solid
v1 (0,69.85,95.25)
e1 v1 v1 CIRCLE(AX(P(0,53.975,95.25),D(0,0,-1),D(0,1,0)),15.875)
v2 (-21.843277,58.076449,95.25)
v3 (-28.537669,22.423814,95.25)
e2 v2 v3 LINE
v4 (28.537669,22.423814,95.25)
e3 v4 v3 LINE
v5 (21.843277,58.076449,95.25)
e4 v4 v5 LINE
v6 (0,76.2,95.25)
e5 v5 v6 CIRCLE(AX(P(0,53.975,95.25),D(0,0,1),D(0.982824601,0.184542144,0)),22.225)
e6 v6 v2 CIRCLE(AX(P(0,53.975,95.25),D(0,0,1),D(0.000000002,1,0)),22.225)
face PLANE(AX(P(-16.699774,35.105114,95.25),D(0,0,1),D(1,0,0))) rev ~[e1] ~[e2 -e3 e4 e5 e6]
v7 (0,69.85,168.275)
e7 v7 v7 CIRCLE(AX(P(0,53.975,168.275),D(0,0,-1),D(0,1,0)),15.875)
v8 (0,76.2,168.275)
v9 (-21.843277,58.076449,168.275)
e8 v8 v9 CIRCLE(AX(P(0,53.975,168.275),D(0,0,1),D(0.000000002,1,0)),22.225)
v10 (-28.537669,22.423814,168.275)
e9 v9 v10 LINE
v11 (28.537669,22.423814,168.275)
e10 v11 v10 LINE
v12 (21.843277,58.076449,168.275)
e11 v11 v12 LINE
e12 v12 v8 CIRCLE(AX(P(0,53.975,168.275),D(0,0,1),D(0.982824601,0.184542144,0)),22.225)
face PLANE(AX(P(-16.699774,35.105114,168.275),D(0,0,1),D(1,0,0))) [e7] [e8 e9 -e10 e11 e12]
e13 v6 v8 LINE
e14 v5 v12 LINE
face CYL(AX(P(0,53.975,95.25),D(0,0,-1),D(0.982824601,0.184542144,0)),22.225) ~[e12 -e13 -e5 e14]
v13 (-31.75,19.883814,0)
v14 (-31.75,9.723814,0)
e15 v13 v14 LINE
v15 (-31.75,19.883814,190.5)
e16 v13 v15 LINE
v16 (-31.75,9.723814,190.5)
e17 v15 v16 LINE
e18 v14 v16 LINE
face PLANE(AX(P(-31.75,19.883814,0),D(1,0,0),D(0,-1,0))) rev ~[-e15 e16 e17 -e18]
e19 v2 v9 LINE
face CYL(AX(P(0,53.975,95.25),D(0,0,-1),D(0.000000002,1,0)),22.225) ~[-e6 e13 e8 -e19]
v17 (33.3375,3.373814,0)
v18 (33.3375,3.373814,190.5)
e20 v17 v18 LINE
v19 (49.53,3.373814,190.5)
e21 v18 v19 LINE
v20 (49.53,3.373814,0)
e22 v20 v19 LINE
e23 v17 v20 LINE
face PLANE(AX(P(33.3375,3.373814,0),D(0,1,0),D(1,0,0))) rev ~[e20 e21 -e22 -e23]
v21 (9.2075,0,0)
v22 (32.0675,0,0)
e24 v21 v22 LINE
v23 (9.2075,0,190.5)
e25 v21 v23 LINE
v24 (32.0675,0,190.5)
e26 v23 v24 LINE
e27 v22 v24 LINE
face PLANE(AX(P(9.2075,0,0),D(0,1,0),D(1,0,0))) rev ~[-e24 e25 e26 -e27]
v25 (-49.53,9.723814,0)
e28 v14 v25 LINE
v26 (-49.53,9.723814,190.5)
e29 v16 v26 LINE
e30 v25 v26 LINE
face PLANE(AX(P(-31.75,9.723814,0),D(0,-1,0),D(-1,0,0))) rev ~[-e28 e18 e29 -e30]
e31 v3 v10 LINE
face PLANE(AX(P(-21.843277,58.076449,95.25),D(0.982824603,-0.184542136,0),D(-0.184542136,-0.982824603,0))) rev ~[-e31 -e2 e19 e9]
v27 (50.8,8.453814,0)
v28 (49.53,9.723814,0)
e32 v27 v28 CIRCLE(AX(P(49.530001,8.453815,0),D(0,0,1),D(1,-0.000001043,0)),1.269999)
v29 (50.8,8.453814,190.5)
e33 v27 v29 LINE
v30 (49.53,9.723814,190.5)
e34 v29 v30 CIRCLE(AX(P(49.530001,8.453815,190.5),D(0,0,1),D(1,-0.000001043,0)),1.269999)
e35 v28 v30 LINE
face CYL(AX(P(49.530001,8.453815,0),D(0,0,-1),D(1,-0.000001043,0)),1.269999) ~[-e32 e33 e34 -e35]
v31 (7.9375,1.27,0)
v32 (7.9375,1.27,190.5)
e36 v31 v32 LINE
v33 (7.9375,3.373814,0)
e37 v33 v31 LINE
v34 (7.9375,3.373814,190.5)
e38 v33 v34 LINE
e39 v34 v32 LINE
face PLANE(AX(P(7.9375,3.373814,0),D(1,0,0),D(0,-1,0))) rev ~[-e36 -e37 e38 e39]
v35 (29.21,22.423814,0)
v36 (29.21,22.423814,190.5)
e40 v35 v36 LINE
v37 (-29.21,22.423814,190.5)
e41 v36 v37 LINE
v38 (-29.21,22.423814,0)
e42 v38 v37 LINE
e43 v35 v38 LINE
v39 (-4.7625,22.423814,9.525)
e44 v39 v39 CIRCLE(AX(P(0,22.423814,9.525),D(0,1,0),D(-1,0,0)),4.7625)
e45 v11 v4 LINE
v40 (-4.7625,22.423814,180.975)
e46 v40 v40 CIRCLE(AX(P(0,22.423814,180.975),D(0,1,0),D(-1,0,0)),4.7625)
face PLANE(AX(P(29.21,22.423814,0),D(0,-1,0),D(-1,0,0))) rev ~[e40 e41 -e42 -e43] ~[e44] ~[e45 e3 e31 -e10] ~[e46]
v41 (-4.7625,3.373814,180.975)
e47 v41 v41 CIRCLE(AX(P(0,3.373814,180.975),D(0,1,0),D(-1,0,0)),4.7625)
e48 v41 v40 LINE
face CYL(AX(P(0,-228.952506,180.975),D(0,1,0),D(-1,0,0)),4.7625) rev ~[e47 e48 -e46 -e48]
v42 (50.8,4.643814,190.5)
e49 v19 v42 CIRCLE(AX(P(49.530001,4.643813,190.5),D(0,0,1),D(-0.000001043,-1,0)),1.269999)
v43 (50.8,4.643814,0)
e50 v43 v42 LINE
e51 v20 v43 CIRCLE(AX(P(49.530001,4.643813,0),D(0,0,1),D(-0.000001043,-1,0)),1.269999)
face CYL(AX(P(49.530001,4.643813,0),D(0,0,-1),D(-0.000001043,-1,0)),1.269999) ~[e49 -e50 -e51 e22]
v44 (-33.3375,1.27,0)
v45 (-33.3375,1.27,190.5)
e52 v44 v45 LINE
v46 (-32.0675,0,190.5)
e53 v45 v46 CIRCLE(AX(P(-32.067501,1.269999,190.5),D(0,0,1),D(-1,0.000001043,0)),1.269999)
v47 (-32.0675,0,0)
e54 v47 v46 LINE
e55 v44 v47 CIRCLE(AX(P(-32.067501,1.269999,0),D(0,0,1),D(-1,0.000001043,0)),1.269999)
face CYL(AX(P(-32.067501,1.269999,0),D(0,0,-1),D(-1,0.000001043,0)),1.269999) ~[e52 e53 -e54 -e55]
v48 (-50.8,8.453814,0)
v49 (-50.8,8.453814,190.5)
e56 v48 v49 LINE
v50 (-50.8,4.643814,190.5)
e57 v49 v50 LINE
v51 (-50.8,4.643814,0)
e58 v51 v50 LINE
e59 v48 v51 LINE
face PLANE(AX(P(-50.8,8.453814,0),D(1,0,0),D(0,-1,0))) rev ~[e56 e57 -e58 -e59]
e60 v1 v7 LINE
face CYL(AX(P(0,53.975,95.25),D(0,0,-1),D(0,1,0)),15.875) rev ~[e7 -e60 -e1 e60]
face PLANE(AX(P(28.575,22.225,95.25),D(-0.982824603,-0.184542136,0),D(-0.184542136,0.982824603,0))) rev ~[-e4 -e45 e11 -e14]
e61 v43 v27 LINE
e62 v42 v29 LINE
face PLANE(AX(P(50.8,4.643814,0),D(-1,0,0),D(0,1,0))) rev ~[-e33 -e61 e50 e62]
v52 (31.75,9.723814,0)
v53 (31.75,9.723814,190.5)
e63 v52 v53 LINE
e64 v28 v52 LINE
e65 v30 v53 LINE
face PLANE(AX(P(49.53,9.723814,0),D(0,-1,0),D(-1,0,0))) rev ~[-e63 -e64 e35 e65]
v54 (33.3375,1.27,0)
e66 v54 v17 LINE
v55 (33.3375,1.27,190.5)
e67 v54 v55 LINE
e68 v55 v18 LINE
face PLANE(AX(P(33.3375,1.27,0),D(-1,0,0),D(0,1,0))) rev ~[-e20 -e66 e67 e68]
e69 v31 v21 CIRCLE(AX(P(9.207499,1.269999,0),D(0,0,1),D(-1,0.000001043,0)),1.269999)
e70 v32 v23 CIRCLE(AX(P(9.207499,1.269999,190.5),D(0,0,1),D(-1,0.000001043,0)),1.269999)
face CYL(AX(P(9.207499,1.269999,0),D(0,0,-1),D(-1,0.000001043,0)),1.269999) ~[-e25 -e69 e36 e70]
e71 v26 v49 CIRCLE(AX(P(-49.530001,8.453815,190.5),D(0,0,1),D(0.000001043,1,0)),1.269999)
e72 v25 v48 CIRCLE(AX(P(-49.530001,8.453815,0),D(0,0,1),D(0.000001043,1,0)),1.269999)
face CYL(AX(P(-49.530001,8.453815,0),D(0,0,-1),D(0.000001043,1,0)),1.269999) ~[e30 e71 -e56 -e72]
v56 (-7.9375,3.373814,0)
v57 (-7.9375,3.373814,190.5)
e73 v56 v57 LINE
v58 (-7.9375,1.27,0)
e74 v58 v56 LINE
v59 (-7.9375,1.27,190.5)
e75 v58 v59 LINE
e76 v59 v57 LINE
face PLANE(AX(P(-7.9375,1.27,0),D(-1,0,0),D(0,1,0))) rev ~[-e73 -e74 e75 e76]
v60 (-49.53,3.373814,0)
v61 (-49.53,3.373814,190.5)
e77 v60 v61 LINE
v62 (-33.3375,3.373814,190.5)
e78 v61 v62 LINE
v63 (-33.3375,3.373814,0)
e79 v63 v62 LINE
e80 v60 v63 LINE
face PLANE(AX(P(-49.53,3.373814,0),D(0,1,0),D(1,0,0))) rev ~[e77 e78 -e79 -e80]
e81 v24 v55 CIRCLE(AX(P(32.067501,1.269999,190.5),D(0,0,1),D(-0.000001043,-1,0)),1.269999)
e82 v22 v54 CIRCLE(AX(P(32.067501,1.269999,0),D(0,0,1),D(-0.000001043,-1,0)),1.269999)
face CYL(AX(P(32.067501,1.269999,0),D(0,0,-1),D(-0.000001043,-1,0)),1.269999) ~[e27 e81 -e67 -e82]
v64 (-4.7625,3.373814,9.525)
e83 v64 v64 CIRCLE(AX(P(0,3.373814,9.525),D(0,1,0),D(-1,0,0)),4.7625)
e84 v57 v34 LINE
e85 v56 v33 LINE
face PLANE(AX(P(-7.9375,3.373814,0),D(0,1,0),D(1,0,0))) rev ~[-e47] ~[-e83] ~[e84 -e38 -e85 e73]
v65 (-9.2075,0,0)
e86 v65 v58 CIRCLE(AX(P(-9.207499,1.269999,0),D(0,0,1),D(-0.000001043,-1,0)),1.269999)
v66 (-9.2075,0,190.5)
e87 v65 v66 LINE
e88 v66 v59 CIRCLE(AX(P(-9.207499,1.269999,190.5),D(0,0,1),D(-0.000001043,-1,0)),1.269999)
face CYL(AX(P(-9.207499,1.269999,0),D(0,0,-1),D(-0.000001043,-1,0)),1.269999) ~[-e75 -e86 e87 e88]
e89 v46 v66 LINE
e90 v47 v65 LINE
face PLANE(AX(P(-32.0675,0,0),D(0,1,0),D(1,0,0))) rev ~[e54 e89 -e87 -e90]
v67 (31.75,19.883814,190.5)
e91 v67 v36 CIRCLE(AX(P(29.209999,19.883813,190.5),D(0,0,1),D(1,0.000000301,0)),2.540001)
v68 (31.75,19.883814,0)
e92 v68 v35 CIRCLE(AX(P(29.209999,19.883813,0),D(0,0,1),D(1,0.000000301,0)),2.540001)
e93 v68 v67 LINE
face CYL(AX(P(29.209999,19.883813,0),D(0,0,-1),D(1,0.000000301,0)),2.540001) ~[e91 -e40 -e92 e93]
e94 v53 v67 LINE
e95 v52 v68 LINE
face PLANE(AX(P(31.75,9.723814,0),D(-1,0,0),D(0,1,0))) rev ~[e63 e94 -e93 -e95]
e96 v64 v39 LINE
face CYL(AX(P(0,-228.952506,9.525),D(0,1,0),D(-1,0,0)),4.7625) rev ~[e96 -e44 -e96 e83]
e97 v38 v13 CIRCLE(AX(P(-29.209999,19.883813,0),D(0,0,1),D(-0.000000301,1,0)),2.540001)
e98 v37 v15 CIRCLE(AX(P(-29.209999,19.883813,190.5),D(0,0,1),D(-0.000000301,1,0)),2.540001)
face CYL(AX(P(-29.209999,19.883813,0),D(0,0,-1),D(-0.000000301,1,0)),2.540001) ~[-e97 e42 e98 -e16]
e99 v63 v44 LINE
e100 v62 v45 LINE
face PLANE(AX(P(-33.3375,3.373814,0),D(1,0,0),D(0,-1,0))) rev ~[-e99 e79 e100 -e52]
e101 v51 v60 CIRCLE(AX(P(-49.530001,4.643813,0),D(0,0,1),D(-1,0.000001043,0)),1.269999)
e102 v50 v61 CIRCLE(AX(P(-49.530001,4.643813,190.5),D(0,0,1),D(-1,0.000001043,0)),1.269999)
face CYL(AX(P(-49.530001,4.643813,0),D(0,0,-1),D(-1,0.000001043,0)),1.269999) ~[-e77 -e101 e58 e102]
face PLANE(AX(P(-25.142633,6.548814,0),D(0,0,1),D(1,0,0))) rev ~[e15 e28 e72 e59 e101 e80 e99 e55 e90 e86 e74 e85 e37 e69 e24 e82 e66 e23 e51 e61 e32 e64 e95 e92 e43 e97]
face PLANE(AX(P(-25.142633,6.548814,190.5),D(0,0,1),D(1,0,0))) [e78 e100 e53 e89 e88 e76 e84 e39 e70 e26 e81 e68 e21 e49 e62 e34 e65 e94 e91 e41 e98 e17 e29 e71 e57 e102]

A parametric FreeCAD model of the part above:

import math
import FreeCAD as App
import Part
import Sketcher

V = App.Vector
Q = App.Units.Quantity

doc = App.newDocument("Part")
params = doc.addObject("Spreadsheet::Sheet", "Params")
for row, (alias, value) in enumerate([
    ("sketch1_radius", "0.1 in"),
    ("sketch1_radius2", "0.0499999 in"),
    ("sketch1_width", "0.9 in"),
    ("sketch1_width2", "0.7 in"),
    ("sketch1_width3", "2.3 in"),
    ("pad1_length", "7.5 in"),
    ("sketch2_diameter", "1.25 in"),
    ("sketch2_radius", "0.875 in"),
    ("sketch2_width", "2.25 in"),
    ("pad2_length", "2.875 in"),
    ("sketch3_diameter", "0.375 in"),
    ("hole_diameter", "0.375 in"),
    ("sketch4_diameter", "0.375 in"),
    ("hole2_diameter", "0.375 in"),
], start=1):
    params.set(f"A{row}", alias)
    params.set(f"B{row}", "=" + value)
    params.setAlias(f"B{row}", alias)

body = doc.addObject("PartDesign::Body", "Body")

sketch1 = body.newObject("Sketcher::SketchObject", "Sketch")
sketch1.AttachmentSupport = (doc.getObject("XY_Plane"), [""])
sketch1.MapMode = "FlatFace"
sketch1.addGeometry(Part.ArcOfCircle(Part.Circle(V(-49.5, 8.5, 0), V(0, 0, 1), 1.3), math.radians(90), math.radians(180)), False)
sketch1.addGeometry(Part.LineSegment(V(-50.8, 8.5, 0), V(-50.8, 4.6, 0)), False)
sketch1.addGeometry(Part.ArcOfCircle(Part.Circle(V(-49.5, 4.6, 0), V(0, 0, 1), 1.3), math.radians(180), math.radians(270)), False)
sketch1.addGeometry(Part.LineSegment(V(-49.5, 3.4, 0), V(-33.3, 3.4, 0)), False)
sketch1.addGeometry(Part.LineSegment(V(-33.3, 3.4, 0), V(-33.3, 1.3, 0)), False)
sketch1.addGeometry(Part.ArcOfCircle(Part.Circle(V(-32.1, 1.3, 0), V(0, 0, 1), 1.3), math.radians(180), math.radians(270)), False)
sketch1.addGeometry(Part.LineSegment(V(-32.1, 0, 0), V(-9.2, 0, 0)), False)
sketch1.addGeometry(Part.ArcOfCircle(Part.Circle(V(-9.2, 1.3, 0), V(0, 0, 1), 1.3), math.radians(-90), math.radians(0)), False)
sketch1.addGeometry(Part.LineSegment(V(-7.9, 1.3, 0), V(-7.9, 3.4, 0)), False)
sketch1.addGeometry(Part.LineSegment(V(-7.9, 3.4, 0), V(7.9, 3.4, 0)), False)
sketch1.addGeometry(Part.LineSegment(V(7.9, 3.4, 0), V(7.9, 1.3, 0)), False)
sketch1.addGeometry(Part.ArcOfCircle(Part.Circle(V(9.2, 1.3, 0), V(0, 0, 1), 1.3), math.radians(180), math.radians(270)), False)
sketch1.addGeometry(Part.LineSegment(V(9.2, 0, 0), V(32.1, 0, 0)), False)
sketch1.addGeometry(Part.ArcOfCircle(Part.Circle(V(32.1, 1.3, 0), V(0, 0, 1), 1.3), math.radians(-90), math.radians(0)), False)
sketch1.addGeometry(Part.LineSegment(V(33.3, 1.3, 0), V(33.3, 3.4, 0)), False)
sketch1.addGeometry(Part.LineSegment(V(33.3, 3.4, 0), V(49.5, 3.4, 0)), False)
sketch1.addGeometry(Part.ArcOfCircle(Part.Circle(V(49.5, 4.6, 0), V(0, 0, 1), 1.3), math.radians(-90), math.radians(0)), False)
sketch1.addGeometry(Part.LineSegment(V(50.8, 4.6, 0), V(50.8, 8.5, 0)), False)
sketch1.addGeometry(Part.ArcOfCircle(Part.Circle(V(49.5, 8.5, 0), V(0, 0, 1), 1.3), math.radians(0), math.radians(90)), False)
sketch1.addGeometry(Part.LineSegment(V(49.5, 9.7, 0), V(31.8, 9.7, 0)), False)
sketch1.addGeometry(Part.LineSegment(V(31.8, 9.7, 0), V(31.8, 19.9, 0)), False)
sketch1.addGeometry(Part.ArcOfCircle(Part.Circle(V(29.2, 19.9, 0), V(0, 0, 1), 2.5), math.radians(0), math.radians(90)), False)
sketch1.addGeometry(Part.LineSegment(V(29.2, 22.4, 0), V(-29.2, 22.4, 0)), False)
sketch1.addGeometry(Part.ArcOfCircle(Part.Circle(V(-29.2, 19.9, 0), V(0, 0, 1), 2.5), math.radians(90), math.radians(180)), False)
sketch1.addGeometry(Part.LineSegment(V(-31.8, 19.9, 0), V(-31.8, 9.7, 0)), False)
sketch1.addGeometry(Part.LineSegment(V(-31.8, 9.7, 0), V(-49.5, 9.7, 0)), False)
sketch1.addConstraint(Sketcher.Constraint("Tangent", 0, 2, 1, 1))
sketch1.addConstraint(Sketcher.Constraint("Tangent", 1, 2, 2, 1))
sketch1.addConstraint(Sketcher.Constraint("Tangent", 2, 2, 3, 1))
sketch1.addConstraint(Sketcher.Constraint("Coincident", 3, 2, 4, 1))
sketch1.addConstraint(Sketcher.Constraint("Tangent", 4, 2, 5, 1))
sketch1.addConstraint(Sketcher.Constraint("Tangent", 5, 2, 6, 1))
sketch1.addConstraint(Sketcher.Constraint("Tangent", 6, 2, 7, 1))
sketch1.addConstraint(Sketcher.Constraint("Tangent", 7, 2, 8, 1))
sketch1.addConstraint(Sketcher.Constraint("Coincident", 8, 2, 9, 1))
sketch1.addConstraint(Sketcher.Constraint("Coincident", 9, 2, 10, 1))
sketch1.addConstraint(Sketcher.Constraint("Tangent", 10, 2, 11, 1))
sketch1.addConstraint(Sketcher.Constraint("Tangent", 11, 2, 12, 1))
sketch1.addConstraint(Sketcher.Constraint("Tangent", 12, 2, 13, 1))
sketch1.addConstraint(Sketcher.Constraint("Tangent", 13, 2, 14, 1))
sketch1.addConstraint(Sketcher.Constraint("Coincident", 14, 2, 15, 1))
sketch1.addConstraint(Sketcher.Constraint("Tangent", 15, 2, 16, 1))
sketch1.addConstraint(Sketcher.Constraint("Tangent", 16, 2, 17, 1))
sketch1.addConstraint(Sketcher.Constraint("Tangent", 17, 2, 18, 1))
sketch1.addConstraint(Sketcher.Constraint("Tangent", 18, 2, 19, 1))
sketch1.addConstraint(Sketcher.Constraint("Coincident", 19, 2, 20, 1))
sketch1.addConstraint(Sketcher.Constraint("Tangent", 20, 2, 21, 1))
sketch1.addConstraint(Sketcher.Constraint("Tangent", 21, 2, 22, 1))
sketch1.addConstraint(Sketcher.Constraint("Tangent", 22, 2, 23, 1))
sketch1.addConstraint(Sketcher.Constraint("Tangent", 23, 2, 24, 1))
sketch1.addConstraint(Sketcher.Constraint("Coincident", 24, 2, 25, 1))
sketch1.addConstraint(Sketcher.Constraint("Tangent", 25, 2, 0, 1))
sketch1.addConstraint(Sketcher.Constraint("Vertical", 1))
sketch1.addConstraint(Sketcher.Constraint("Horizontal", 3))
sketch1.addConstraint(Sketcher.Constraint("Vertical", 4))
sketch1.addConstraint(Sketcher.Constraint("Horizontal", 6))
sketch1.addConstraint(Sketcher.Constraint("Vertical", 8))
sketch1.addConstraint(Sketcher.Constraint("Horizontal", 9))
sketch1.addConstraint(Sketcher.Constraint("Vertical", 10))
sketch1.addConstraint(Sketcher.Constraint("Horizontal", 12))
sketch1.addConstraint(Sketcher.Constraint("Vertical", 14))
sketch1.addConstraint(Sketcher.Constraint("Horizontal", 15))
sketch1.addConstraint(Sketcher.Constraint("Vertical", 17))
sketch1.addConstraint(Sketcher.Constraint("Horizontal", 19))
sketch1.addConstraint(Sketcher.Constraint("Vertical", 20))
sketch1.addConstraint(Sketcher.Constraint("Horizontal", 22))
sketch1.addConstraint(Sketcher.Constraint("Vertical", 24))
sketch1.addConstraint(Sketcher.Constraint("Horizontal", 25))
sketch1.addConstraint(Sketcher.Constraint("Equal", 0, 2))
sketch1.addConstraint(Sketcher.Constraint("Equal", 2, 5))
sketch1.addConstraint(Sketcher.Constraint("Equal", 5, 7))
sketch1.addConstraint(Sketcher.Constraint("Equal", 7, 11))
sketch1.addConstraint(Sketcher.Constraint("Equal", 11, 13))
sketch1.addConstraint(Sketcher.Constraint("Equal", 13, 16))
sketch1.addConstraint(Sketcher.Constraint("Equal", 16, 18))
sketch1.addConstraint(Sketcher.Constraint("Equal", 21, 23))
sketch1.addConstraint(Sketcher.Constraint("Symmetric", 6, 2, 11, 2, -1, 1))
sketch1.addConstraint(Sketcher.Constraint("Symmetric", 5, 3, 13, 3, -2))
sketch1.addConstraint(Sketcher.Constraint("Symmetric", 2, 3, 16, 3, -2))
sketch1.addConstraint(Sketcher.Constraint("Symmetric", 19, 2, 24, 2, -2))
sketch1.addConstraint(Sketcher.Constraint("Horizontal", 3, 2, 8, 2))
sketch1.addConstraint(Sketcher.Constraint("Radius", 21, Q("0.1 in")))
sketch1.addConstraint(Sketcher.Constraint("Radius", 0, Q("0.0499999 in")))
sketch1.addConstraint(Sketcher.Constraint("DistanceX", 6, 1, 6, 2, Q("0.9 in")))
sketch1.addConstraint(Sketcher.Constraint("DistanceX", 19, 2, 19, 1, Q("0.7 in")))
sketch1.addConstraint(Sketcher.Constraint("DistanceX", 22, 2, 22, 1, Q("2.3 in")))
sketch1.addConstraint(Sketcher.Constraint("DistanceY", 20, 1, 20, 2, Q("0.4 in")))
sketch1.addConstraint(Sketcher.Constraint("DistanceY", 1, 2, 1, 1, Q("0.15 in")))
sketch1.addConstraint(Sketcher.Constraint("DistanceX", 9, 1, 9, 2, Q("0.625 in")))
sketch1.addConstraint(Sketcher.Constraint("DistanceY", 4, 2, 4, 1, Q("2.103814 mm")))
sketch1.setExpression("Constraints[55]", "Params.sketch1_radius")
sketch1.setExpression("Constraints[56]", "Params.sketch1_radius2")
sketch1.setExpression("Constraints[57]", "Params.sketch1_width")
sketch1.setExpression("Constraints[58]", "Params.sketch1_width2")
sketch1.setExpression("Constraints[59]", "Params.sketch1_width3")
pad1 = body.newObject("PartDesign::Pad", "Pad")
pad1.Profile = sketch1
pad1.setExpression("Length", "Params.pad1_length")

sketch2 = body.newObject("Sketcher::SketchObject", "Sketch001")
sketch2.AttachmentSupport = (doc.getObject("XY_Plane"), [""])
sketch2.MapMode = "FlatFace"
sketch2.AttachmentOffset = App.Placement(V(0, 0, 3.75 * 25.4), App.Rotation())
sketch2.addGeometry(Part.LineSegment(V(-22, 58, 0), V(-29, 22, 0)), False)
sketch2.addGeometry(Part.LineSegment(V(-29, 22, 0), V(29, 22, 0)), False)
sketch2.addGeometry(Part.LineSegment(V(29, 22, 0), V(22, 58, 0)), False)
sketch2.addGeometry(Part.ArcOfCircle(Part.Circle(V(0, 54, 0), V(0, 0, 1), 22), math.radians(11), math.radians(90)), False)
sketch2.addGeometry(Part.ArcOfCircle(Part.Circle(V(0, 54, 0), V(0, 0, 1), 22), math.radians(90), math.radians(169)), False)
sketch2.addGeometry(Part.Circle(V(0, 54, 0), V(0, 0, 1), 16), False)
sketch2.addConstraint(Sketcher.Constraint("Coincident", 0, 2, 1, 1))
sketch2.addConstraint(Sketcher.Constraint("Coincident", 1, 2, 2, 1))
sketch2.addConstraint(Sketcher.Constraint("Tangent", 2, 2, 3, 1))
sketch2.addConstraint(Sketcher.Constraint("Tangent", 3, 2, 4, 1))
sketch2.addConstraint(Sketcher.Constraint("Tangent", 4, 2, 0, 1))
sketch2.addConstraint(Sketcher.Constraint("Horizontal", 1))
sketch2.addConstraint(Sketcher.Constraint("Coincident", 5, 3, 3, 3))
sketch2.addConstraint(Sketcher.Constraint("Equal", 3, 4))
sketch2.addConstraint(Sketcher.Constraint("Symmetric", 2, 2, 4, 2, -2))
sketch2.addConstraint(Sketcher.Constraint("PointOnObject", 3, 2, -2))
sketch2.addConstraint(Sketcher.Constraint("Diameter", 5, Q("1.25 in")))
sketch2.addConstraint(Sketcher.Constraint("DistanceY", -1, 1, 3, 2, Q("3 in")))
sketch2.addConstraint(Sketcher.Constraint("Radius", 3, Q("0.875 in")))
sketch2.addConstraint(Sketcher.Constraint("DistanceX", 1, 1, 1, 2, Q("2.25 in")))
sketch2.addConstraint(Sketcher.Constraint("DistanceY", 0, 2, 4, 3, Q("1.25 in")))
sketch2.setExpression("Constraints[10]", "Params.sketch2_diameter")
sketch2.setExpression("Constraints[12]", "Params.sketch2_radius")
sketch2.setExpression("Constraints[13]", "Params.sketch2_width")
pad2 = body.newObject("PartDesign::Pad", "Pad001")
pad2.Profile = sketch2
pad2.setExpression("Length", "Params.pad2_length")

sketch3 = body.newObject("Sketcher::SketchObject", "Sketch002")
sketch3.AttachmentSupport = (doc.getObject("XZ_Plane"), [""])
sketch3.MapMode = "FlatFace"
sketch3.addGeometry(Part.Circle(V(0, 181, 0), V(0, 0, 1), 4.8), False)
sketch3.addConstraint(Sketcher.Constraint("PointOnObject", 0, 3, -2))
sketch3.addConstraint(Sketcher.Constraint("Diameter", 0, Q("0.375 in")))
sketch3.addConstraint(Sketcher.Constraint("DistanceY", -1, 1, 0, 3, Q("7.125 in")))
sketch3.setExpression("Constraints[1]", "Params.sketch3_diameter")
doc.recompute()
hole = body.newObject("PartDesign::Hole", "Hole")
hole.Profile = sketch3
hole.ThreadType = "None"
hole.setExpression("Diameter", "Params.hole_diameter")
hole.DepthType = "ThroughAll"

sketch4 = body.newObject("Sketcher::SketchObject", "Sketch003")
sketch4.AttachmentSupport = (doc.getObject("XZ_Plane"), [""])
sketch4.MapMode = "FlatFace"
sketch4.addGeometry(Part.Circle(V(0, 9.5, 0), V(0, 0, 1), 4.8), False)
sketch4.addConstraint(Sketcher.Constraint("PointOnObject", 0, 3, -2))
sketch4.addConstraint(Sketcher.Constraint("Diameter", 0, Q("0.375 in")))
sketch4.addConstraint(Sketcher.Constraint("DistanceY", -1, 1, 0, 3, Q("0.375 in")))
sketch4.setExpression("Constraints[1]", "Params.sketch4_diameter")
doc.recompute()
hole2 = body.newObject("PartDesign::Hole", "Hole001")
hole2.Profile = sketch4
hole2.ThreadType = "None"
hole2.setExpression("Diameter", "Params.hole2_diameter")
hole2.DepthType = "ThroughAll"

doc.recompute()
